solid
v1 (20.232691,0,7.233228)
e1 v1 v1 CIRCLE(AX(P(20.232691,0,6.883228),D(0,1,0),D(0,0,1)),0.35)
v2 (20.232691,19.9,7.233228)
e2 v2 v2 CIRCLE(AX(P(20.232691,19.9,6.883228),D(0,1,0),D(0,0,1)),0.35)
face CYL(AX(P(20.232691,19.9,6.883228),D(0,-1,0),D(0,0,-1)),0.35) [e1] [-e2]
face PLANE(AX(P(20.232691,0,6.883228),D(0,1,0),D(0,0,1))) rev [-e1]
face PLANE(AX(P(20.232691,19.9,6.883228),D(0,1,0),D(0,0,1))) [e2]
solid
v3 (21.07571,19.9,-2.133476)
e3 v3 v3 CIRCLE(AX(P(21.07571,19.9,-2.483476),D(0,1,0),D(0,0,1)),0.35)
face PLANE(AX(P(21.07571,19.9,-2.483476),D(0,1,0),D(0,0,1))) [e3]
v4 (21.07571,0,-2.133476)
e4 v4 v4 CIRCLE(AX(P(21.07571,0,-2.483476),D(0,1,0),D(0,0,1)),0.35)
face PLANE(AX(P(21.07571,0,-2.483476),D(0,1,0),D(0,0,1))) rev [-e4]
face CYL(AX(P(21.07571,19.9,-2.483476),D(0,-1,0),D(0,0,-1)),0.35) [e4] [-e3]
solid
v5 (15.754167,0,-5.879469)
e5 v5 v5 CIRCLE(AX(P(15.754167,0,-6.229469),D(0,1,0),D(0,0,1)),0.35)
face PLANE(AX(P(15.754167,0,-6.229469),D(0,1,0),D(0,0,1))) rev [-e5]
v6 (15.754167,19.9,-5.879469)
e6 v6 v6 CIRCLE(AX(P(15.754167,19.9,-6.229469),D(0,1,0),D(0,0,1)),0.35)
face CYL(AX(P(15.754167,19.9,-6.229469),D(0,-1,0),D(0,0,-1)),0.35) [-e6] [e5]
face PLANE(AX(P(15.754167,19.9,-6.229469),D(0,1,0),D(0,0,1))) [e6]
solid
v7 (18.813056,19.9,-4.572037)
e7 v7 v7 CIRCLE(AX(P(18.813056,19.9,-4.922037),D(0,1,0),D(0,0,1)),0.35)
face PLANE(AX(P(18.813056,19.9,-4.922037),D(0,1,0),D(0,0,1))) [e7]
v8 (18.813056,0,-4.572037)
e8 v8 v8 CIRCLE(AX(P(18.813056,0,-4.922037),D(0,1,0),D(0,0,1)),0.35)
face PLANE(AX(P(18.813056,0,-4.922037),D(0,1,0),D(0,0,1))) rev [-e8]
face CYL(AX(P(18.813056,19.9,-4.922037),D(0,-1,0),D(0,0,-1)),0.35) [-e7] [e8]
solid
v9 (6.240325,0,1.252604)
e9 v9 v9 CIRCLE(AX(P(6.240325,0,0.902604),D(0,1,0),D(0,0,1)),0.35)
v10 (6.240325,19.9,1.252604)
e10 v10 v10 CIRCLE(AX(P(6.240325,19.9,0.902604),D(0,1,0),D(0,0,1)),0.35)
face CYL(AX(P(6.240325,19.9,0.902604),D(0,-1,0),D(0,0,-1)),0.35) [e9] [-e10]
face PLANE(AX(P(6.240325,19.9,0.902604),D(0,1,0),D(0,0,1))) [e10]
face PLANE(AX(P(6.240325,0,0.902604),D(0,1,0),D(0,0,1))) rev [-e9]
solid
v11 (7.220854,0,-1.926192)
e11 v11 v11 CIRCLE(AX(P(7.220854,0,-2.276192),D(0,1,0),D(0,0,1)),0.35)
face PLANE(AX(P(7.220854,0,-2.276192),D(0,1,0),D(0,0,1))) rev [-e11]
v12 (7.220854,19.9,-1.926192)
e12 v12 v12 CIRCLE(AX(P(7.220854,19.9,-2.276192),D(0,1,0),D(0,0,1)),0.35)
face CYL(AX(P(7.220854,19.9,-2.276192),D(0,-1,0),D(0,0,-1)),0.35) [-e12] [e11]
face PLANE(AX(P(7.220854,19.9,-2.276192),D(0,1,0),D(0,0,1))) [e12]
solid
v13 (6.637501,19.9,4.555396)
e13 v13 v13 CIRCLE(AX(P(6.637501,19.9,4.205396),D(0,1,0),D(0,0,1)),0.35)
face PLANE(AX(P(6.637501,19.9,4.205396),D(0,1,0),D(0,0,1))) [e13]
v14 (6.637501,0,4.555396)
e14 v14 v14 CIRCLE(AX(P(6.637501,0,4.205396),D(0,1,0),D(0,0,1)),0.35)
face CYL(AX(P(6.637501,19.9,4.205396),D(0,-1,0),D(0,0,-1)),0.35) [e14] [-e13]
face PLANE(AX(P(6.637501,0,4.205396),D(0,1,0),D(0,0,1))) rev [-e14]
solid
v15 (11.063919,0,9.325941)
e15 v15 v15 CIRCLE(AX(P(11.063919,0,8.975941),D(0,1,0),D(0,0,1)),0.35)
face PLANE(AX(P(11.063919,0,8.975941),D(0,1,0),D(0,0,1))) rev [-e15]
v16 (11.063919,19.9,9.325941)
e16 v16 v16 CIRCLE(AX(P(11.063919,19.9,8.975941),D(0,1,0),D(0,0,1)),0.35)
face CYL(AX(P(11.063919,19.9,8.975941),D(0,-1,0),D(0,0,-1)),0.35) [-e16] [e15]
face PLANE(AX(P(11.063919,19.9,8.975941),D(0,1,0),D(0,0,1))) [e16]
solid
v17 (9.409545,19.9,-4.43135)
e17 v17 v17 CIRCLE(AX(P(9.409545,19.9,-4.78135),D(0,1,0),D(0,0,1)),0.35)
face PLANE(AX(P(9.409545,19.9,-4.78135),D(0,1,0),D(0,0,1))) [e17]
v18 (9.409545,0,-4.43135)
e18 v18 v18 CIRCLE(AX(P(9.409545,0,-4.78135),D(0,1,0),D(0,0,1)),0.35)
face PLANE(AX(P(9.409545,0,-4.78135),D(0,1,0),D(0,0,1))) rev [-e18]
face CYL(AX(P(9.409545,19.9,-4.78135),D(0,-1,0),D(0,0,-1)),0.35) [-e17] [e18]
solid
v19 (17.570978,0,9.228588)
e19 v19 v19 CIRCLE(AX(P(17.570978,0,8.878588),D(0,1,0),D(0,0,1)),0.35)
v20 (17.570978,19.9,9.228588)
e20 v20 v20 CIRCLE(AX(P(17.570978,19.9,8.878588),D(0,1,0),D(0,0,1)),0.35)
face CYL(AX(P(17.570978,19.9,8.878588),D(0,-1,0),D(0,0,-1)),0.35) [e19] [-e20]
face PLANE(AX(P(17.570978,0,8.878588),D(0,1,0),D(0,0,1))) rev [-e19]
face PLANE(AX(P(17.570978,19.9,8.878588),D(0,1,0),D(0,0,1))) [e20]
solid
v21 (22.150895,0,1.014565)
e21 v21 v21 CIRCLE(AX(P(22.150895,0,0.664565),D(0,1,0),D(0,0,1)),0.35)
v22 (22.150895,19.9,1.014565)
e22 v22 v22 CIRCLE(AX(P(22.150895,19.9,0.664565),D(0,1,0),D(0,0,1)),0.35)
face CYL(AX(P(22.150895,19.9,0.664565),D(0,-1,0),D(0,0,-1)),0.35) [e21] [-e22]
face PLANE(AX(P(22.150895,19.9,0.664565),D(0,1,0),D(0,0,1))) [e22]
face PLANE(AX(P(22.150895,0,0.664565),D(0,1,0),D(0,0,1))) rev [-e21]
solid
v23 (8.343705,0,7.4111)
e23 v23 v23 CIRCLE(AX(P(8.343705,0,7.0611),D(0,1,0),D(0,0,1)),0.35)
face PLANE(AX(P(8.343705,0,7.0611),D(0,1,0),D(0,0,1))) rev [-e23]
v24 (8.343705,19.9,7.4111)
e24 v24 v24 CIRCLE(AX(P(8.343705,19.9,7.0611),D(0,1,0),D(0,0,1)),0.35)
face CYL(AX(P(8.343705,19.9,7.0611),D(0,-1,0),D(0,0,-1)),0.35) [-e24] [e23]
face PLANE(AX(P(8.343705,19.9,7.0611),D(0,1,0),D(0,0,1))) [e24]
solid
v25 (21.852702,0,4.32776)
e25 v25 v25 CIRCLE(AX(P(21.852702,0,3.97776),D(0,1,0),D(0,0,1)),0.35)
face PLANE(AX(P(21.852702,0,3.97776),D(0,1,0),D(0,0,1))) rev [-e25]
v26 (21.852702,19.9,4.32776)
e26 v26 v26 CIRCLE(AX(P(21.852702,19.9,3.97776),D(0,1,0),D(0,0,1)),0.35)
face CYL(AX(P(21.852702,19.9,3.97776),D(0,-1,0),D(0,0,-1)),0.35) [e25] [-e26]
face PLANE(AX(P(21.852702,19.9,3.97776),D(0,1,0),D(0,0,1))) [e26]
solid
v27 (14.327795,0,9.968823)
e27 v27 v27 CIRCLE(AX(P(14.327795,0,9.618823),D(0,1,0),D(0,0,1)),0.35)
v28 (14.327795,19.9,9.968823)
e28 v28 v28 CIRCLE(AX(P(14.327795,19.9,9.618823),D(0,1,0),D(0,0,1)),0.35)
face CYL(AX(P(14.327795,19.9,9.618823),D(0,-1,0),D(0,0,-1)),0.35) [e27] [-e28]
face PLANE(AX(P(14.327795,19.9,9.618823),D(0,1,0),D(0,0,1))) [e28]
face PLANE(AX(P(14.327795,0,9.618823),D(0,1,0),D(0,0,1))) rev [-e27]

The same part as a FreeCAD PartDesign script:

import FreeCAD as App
import Part
import Sketcher
from FreeCAD import Vector

doc = App.newDocument("Part")
body = doc.addObject("PartDesign::Body", "Body")

# Sketch on XZ plane
sketch1 = body.newObject("Sketcher::SketchObject", "Sketch")
sketch1.AttachmentSupport = (doc.getObject("XZ_Plane"), [""])
sketch1.MapMode = "FlatFace"
sketch1.addGeometry(Part.Circle(Vector(15.754167, -6.229469, 0), Vector(0, 0, 1), 0.35), False)
sketch1.addConstraint([
    Sketcher.Constraint("Diameter", 0, 0.7),
    Sketcher.Constraint("DistanceY", 0, 3, -1, 1, 6.229469),
    Sketcher.Constraint("DistanceX", -1, 1, 0, 3, 15.754167),
])
pad1 = body.newObject("PartDesign::Pad", "Pad")
pad1.Profile = sketch1
pad1.Length = 19.9
pad1.Reversed = True
body2 = doc.addObject("PartDesign::Body", "Body001")

# Sketch on XZ plane
sketch2 = body2.newObject("Sketcher::SketchObject", "Sketch001")
sketch2.AttachmentSupport = (doc.getObject("XZ_Plane001"), [""])
sketch2.MapMode = "FlatFace"
sketch2.addGeometry(Part.Circle(Vector(18.813056, -4.922037, 0), Vector(0, 0, 1), 0.35), False)
sketch2.addConstraint([
    Sketcher.Constraint("Diameter", 0, 0.7),
    Sketcher.Constraint("DistanceX", -1, 1, 0, 3, 18.813056),
    Sketcher.Constraint("DistanceY", 0, 3, -1, 1, 4.922037),
])
pad2 = body2.newObject("PartDesign::Pad", "Pad001")
pad2.Profile = sketch2
pad2.Length = 19.9
pad2.Reversed = True
body3 = doc.addObject("PartDesign::Body", "Body002")

# Sketch on XZ plane
sketch3 = body3.newObject("Sketcher::SketchObject", "Sketch002")
sketch3.AttachmentSupport = (doc.getObject("XZ_Plane002"), [""])
sketch3.MapMode = "FlatFace"
sketch3.addGeometry(Part.Circle(Vector(21.07571, -2.483476, 0), Vector(0, 0, 1), 0.35), False)
sketch3.addConstraint([
    Sketcher.Constraint("Diameter", 0, 0.7),
    Sketcher.Constraint("DistanceX", -1, 1, 0, 3, 21.07571),
    Sketcher.Constraint("DistanceY", 0, 3, -1, 1, 2.483476),
])
pad3 = body3.newObject("PartDesign::Pad", "Pad002")
pad3.Profile = sketch3
pad3.Length = 19.9
pad3.Reversed = True
body4 = doc.addObject("PartDesign::Body", "Body003")

# Sketch on XZ plane
sketch4 = body4.newObject("Sketcher::SketchObject", "Sketch003")
sketch4.AttachmentSupport = (doc.getObject("XZ_Plane003"), [""])
sketch4.MapMode = "FlatFace"
sketch4.addGeometry(Part.Circle(Vector(22.150895, 0.664565, 0), Vector(0, 0, 1), 0.35), False)
sketch4.addConstraint([
    Sketcher.Constraint("Diameter", 0, 0.7),
    Sketcher.Constraint("DistanceX", -1, 1, 0, 3, 22.150895),
    Sketcher.Constraint("DistanceY", -1, 1, 0, 3, 0.664565),
])
pad4 = body4.newObject("PartDesign::Pad", "Pad003")
pad4.Profile = sketch4
pad4.Length = 19.9
pad4.Reversed = True
body5 = doc.addObject("PartDesign::Body", "Body004")

# Sketch on XZ plane
sketch5 = body5.newObject("Sketcher::SketchObject", "Sketch004")
sketch5.AttachmentSupport = (doc.getObject("XZ_Plane004"), [""])
sketch5.MapMode = "FlatFace"
sketch5.addGeometry(Part.Circle(Vector(21.852702, 3.97776, 0), Vector(0, 0, 1), 0.35), False)
sketch5.addConstraint([
    Sketcher.Constraint("Diameter", 0, 0.7),
    Sketcher.Constraint("DistanceY", -1, 1, 0, 3, 3.97776),
    Sketcher.Constraint("DistanceX", -1, 1, 0, 3, 21.852702),
])
pad5 = body5.newObject("PartDesign::Pad", "Pad004")
pad5.Profile = sketch5
pad5.Length = 19.9
pad5.Reversed = True
body6 = doc.addObject("PartDesign::Body", "Body005")

# Sketch on XZ plane
sketch6 = body6.newObject("Sketcher::SketchObject", "Sketch005")
sketch6.AttachmentSupport = (doc.getObject("XZ_Plane005"), [""])
sketch6.MapMode = "FlatFace"
sketch6.addGeometry(Part.Circle(Vector(20.232691, 6.883228, 0), Vector(0, 0, 1), 0.35), False)
sketch6.addConstraint([
    Sketcher.Constraint("Diameter", 0, 0.7),
    Sketcher.Constraint("DistanceX", -1, 1, 0, 3, 20.232691),
    Sketcher.Constraint("DistanceY", -1, 1, 0, 3, 6.883228),
])
pad6 = body6.newObject("PartDesign::Pad", "Pad005")
pad6.Profile = sketch6
pad6.Length = 19.9
pad6.Reversed = True
body7 = doc.addObject("PartDesign::Body", "Body006")

# Sketch on XZ plane
sketch7 = body7.newObject("Sketcher::SketchObject", "Sketch006")
sketch7.AttachmentSupport = (doc.getObject("XZ_Plane006"), [""])
sketch7.MapMode = "FlatFace"
sketch7.addGeometry(Part.Circle(Vector(17.570978, 8.878588, 0), Vector(0, 0, 1), 0.35), False)
sketch7.addConstraint([
    Sketcher.Constraint("Diameter", 0, 0.7),
    Sketcher.Constraint("DistanceX", -1, 1, 0, 3, 17.570978),
    Sketcher.Constraint("DistanceY", -1, 1, 0, 3, 8.878588),
])
pad7 = body7.newObject("PartDesign::Pad", "Pad006")
pad7.Profile = sketch7
pad7.Length = 19.9
pad7.Reversed = True
body8 = doc.addObject("PartDesign::Body", "Body007")

# Sketch on XZ plane
sketch8 = body8.newObject("Sketcher::SketchObject", "Sketch007")
sketch8.AttachmentSupport = (doc.getObject("XZ_Plane007"), [""])
sketch8.MapMode = "FlatFace"
sketch8.addGeometry(Part.Circle(Vector(14.327795, 9.618823, 0), Vector(0, 0, 1), 0.35), False)
sketch8.addConstraint([
    Sketcher.Constraint("Diameter", 0, 0.7),
    Sketcher.Constraint("DistanceX", -1, 1, 0, 3, 14.327795),
    Sketcher.Constraint("DistanceY", -1, 1, 0, 3, 9.618823),
])
pad8 = body8.newObject("PartDesign::Pad", "Pad007")
pad8.Profile = sketch8
pad8.Length = 19.9
pad8.Reversed = True
body9 = doc.addObject("PartDesign::Body", "Body008")

# Sketch on XZ plane
sketch9 = body9.newObject("Sketcher::SketchObject", "Sketch008")
sketch9.AttachmentSupport = (doc.getObject("XZ_Plane008"), [""])
sketch9.MapMode = "FlatFace"
sketch9.addGeometry(Part.Circle(Vector(11.063919, 8.975941, 0), Vector(0, 0, 1), 0.35), False)
sketch9.addConstraint([
    Sketcher.Constraint("Diameter", 0, 0.7),
    Sketcher.Constraint("DistanceX", -1, 1, 0, 3, 11.063919),
    Sketcher.Constraint("DistanceY", -1, 1, 0, 3, 8.975941),
])
pad9 = body9.newObject("PartDesign::Pad", "Pad008")
pad9.Profile = sketch9
pad9.Length = 19.9
pad9.Reversed = True
body10 = doc.addObject("PartDesign::Body", "Body009")

# Sketch on XZ plane
sketch10 = body10.newObject("Sketcher::SketchObject", "Sketch009")
sketch10.AttachmentSupport = (doc.getObject("XZ_Plane009"), [""])
sketch10.MapMode = "FlatFace"
sketch10.addGeometry(Part.Circle(Vector(8.343705, 7.0611, 0), Vector(0, 0, 1), 0.35), False)
sketch10.addConstraint([
    Sketcher.Constraint("Diameter", 0, 0.7),
    Sketcher.Constraint("DistanceY", -1, 1, 0, 3, 7.0611),
    Sketcher.Constraint("DistanceX", -1, 1, 0, 3, 8.343705),
])
pad10 = body10.newObject("PartDesign::Pad", "Pad009")
pad10.Profile = sketch10
pad10.Length = 19.9
pad10.Reversed = True
body11 = doc.addObject("PartDesign::Body", "Body010")

# Sketch on XZ plane
sketch11 = body11.newObject("Sketcher::SketchObject", "Sketch010")
sketch11.AttachmentSupport = (doc.getObject("XZ_Plane010"), [""])
sketch11.MapMode = "FlatFace"
sketch11.addGeometry(Part.Circle(Vector(6.637501, 4.205396, 0), Vector(0, 0, 1), 0.35), False)
sketch11.addConstraint([
    Sketcher.Constraint("Diameter", 0, 0.7),
    Sketcher.Constraint("DistanceX", -1, 1, 0, 3, 6.637501),
    Sketcher.Constraint("DistanceY", -1, 1, 0, 3, 4.205396),
])
pad11 = body11.newObject("PartDesign::Pad", "Pad010")
pad11.Profile = sketch11
pad11.Length = 19.9
pad11.Reversed = True
body12 = doc.addObject("PartDesign::Body", "Body011")

# Sketch on XZ plane
sketch12 = body12.newObject("Sketcher::SketchObject", "Sketch011")
sketch12.AttachmentSupport = (doc.getObject("XZ_Plane011"), [""])
sketch12.MapMode = "FlatFace"
sketch12.addGeometry(Part.Circle(Vector(6.240325, 0.902604, 0), Vector(0, 0, 1), 0.35), False)
sketch12.addConstraint([
    Sketcher.Constraint("Diameter", 0, 0.7),
    Sketcher.Constraint("DistanceX", -1, 1, 0, 3, 6.240325),
    Sketcher.Constraint("DistanceY", -1, 1, 0, 3, 0.902604),
])
pad12 = body12.newObject("PartDesign::Pad", "Pad011")
pad12.Profile = sketch12
pad12.Length = 19.9
pad12.Reversed = True
body13 = doc.addObject("PartDesign::Body", "Body012")

# Sketch on XZ plane
sketch13 = body13.newObject("Sketcher::SketchObject", "Sketch012")
sketch13.AttachmentSupport = (doc.getObject("XZ_Plane012"), [""])
sketch13.MapMode = "FlatFace"
sketch13.addGeometry(Part.Circle(Vector(7.220854, -2.276192, 0), Vector(0, 0, 1), 0.35), False)
sketch13.addConstraint([
    Sketcher.Constraint("Diameter", 0, 0.7),
    Sketcher.Constraint("DistanceX", -1, 1, 0, 3, 7.220854),
    Sketcher.Constraint("DistanceY", 0, 3, -1, 1, 2.276192),
])
pad13 = body13.newObject("PartDesign::Pad", "Pad012")
pad13.Profile = sketch13
pad13.Length = 19.9
pad13.Reversed = True
body14 = doc.addObject("PartDesign::Body", "Body013")

# Sketch on XZ plane
sketch14 = body14.newObject("Sketcher::SketchObject", "Sketch013")
sketch14.AttachmentSupport = (doc.getObject("XZ_Plane013"), [""])
sketch14.MapMode = "FlatFace"
sketch14.addGeometry(Part.Circle(Vector(9.409545, -4.78135, 0), Vector(0, 0, 1), 0.35), False)
sketch14.addConstraint([
    Sketcher.Constraint("Diameter", 0, 0.7),
    Sketcher.Constraint("DistanceY", 0, 3, -1, 1, 4.78135),
    Sketcher.Constraint("DistanceX", -1, 1, 0, 3, 9.409545),
])
pad14 = body14.newObject("PartDesign::Pad", "Pad013")
pad14.Profile = sketch14
pad14.Length = 19.9
pad14.Reversed = True

doc.recompute()
